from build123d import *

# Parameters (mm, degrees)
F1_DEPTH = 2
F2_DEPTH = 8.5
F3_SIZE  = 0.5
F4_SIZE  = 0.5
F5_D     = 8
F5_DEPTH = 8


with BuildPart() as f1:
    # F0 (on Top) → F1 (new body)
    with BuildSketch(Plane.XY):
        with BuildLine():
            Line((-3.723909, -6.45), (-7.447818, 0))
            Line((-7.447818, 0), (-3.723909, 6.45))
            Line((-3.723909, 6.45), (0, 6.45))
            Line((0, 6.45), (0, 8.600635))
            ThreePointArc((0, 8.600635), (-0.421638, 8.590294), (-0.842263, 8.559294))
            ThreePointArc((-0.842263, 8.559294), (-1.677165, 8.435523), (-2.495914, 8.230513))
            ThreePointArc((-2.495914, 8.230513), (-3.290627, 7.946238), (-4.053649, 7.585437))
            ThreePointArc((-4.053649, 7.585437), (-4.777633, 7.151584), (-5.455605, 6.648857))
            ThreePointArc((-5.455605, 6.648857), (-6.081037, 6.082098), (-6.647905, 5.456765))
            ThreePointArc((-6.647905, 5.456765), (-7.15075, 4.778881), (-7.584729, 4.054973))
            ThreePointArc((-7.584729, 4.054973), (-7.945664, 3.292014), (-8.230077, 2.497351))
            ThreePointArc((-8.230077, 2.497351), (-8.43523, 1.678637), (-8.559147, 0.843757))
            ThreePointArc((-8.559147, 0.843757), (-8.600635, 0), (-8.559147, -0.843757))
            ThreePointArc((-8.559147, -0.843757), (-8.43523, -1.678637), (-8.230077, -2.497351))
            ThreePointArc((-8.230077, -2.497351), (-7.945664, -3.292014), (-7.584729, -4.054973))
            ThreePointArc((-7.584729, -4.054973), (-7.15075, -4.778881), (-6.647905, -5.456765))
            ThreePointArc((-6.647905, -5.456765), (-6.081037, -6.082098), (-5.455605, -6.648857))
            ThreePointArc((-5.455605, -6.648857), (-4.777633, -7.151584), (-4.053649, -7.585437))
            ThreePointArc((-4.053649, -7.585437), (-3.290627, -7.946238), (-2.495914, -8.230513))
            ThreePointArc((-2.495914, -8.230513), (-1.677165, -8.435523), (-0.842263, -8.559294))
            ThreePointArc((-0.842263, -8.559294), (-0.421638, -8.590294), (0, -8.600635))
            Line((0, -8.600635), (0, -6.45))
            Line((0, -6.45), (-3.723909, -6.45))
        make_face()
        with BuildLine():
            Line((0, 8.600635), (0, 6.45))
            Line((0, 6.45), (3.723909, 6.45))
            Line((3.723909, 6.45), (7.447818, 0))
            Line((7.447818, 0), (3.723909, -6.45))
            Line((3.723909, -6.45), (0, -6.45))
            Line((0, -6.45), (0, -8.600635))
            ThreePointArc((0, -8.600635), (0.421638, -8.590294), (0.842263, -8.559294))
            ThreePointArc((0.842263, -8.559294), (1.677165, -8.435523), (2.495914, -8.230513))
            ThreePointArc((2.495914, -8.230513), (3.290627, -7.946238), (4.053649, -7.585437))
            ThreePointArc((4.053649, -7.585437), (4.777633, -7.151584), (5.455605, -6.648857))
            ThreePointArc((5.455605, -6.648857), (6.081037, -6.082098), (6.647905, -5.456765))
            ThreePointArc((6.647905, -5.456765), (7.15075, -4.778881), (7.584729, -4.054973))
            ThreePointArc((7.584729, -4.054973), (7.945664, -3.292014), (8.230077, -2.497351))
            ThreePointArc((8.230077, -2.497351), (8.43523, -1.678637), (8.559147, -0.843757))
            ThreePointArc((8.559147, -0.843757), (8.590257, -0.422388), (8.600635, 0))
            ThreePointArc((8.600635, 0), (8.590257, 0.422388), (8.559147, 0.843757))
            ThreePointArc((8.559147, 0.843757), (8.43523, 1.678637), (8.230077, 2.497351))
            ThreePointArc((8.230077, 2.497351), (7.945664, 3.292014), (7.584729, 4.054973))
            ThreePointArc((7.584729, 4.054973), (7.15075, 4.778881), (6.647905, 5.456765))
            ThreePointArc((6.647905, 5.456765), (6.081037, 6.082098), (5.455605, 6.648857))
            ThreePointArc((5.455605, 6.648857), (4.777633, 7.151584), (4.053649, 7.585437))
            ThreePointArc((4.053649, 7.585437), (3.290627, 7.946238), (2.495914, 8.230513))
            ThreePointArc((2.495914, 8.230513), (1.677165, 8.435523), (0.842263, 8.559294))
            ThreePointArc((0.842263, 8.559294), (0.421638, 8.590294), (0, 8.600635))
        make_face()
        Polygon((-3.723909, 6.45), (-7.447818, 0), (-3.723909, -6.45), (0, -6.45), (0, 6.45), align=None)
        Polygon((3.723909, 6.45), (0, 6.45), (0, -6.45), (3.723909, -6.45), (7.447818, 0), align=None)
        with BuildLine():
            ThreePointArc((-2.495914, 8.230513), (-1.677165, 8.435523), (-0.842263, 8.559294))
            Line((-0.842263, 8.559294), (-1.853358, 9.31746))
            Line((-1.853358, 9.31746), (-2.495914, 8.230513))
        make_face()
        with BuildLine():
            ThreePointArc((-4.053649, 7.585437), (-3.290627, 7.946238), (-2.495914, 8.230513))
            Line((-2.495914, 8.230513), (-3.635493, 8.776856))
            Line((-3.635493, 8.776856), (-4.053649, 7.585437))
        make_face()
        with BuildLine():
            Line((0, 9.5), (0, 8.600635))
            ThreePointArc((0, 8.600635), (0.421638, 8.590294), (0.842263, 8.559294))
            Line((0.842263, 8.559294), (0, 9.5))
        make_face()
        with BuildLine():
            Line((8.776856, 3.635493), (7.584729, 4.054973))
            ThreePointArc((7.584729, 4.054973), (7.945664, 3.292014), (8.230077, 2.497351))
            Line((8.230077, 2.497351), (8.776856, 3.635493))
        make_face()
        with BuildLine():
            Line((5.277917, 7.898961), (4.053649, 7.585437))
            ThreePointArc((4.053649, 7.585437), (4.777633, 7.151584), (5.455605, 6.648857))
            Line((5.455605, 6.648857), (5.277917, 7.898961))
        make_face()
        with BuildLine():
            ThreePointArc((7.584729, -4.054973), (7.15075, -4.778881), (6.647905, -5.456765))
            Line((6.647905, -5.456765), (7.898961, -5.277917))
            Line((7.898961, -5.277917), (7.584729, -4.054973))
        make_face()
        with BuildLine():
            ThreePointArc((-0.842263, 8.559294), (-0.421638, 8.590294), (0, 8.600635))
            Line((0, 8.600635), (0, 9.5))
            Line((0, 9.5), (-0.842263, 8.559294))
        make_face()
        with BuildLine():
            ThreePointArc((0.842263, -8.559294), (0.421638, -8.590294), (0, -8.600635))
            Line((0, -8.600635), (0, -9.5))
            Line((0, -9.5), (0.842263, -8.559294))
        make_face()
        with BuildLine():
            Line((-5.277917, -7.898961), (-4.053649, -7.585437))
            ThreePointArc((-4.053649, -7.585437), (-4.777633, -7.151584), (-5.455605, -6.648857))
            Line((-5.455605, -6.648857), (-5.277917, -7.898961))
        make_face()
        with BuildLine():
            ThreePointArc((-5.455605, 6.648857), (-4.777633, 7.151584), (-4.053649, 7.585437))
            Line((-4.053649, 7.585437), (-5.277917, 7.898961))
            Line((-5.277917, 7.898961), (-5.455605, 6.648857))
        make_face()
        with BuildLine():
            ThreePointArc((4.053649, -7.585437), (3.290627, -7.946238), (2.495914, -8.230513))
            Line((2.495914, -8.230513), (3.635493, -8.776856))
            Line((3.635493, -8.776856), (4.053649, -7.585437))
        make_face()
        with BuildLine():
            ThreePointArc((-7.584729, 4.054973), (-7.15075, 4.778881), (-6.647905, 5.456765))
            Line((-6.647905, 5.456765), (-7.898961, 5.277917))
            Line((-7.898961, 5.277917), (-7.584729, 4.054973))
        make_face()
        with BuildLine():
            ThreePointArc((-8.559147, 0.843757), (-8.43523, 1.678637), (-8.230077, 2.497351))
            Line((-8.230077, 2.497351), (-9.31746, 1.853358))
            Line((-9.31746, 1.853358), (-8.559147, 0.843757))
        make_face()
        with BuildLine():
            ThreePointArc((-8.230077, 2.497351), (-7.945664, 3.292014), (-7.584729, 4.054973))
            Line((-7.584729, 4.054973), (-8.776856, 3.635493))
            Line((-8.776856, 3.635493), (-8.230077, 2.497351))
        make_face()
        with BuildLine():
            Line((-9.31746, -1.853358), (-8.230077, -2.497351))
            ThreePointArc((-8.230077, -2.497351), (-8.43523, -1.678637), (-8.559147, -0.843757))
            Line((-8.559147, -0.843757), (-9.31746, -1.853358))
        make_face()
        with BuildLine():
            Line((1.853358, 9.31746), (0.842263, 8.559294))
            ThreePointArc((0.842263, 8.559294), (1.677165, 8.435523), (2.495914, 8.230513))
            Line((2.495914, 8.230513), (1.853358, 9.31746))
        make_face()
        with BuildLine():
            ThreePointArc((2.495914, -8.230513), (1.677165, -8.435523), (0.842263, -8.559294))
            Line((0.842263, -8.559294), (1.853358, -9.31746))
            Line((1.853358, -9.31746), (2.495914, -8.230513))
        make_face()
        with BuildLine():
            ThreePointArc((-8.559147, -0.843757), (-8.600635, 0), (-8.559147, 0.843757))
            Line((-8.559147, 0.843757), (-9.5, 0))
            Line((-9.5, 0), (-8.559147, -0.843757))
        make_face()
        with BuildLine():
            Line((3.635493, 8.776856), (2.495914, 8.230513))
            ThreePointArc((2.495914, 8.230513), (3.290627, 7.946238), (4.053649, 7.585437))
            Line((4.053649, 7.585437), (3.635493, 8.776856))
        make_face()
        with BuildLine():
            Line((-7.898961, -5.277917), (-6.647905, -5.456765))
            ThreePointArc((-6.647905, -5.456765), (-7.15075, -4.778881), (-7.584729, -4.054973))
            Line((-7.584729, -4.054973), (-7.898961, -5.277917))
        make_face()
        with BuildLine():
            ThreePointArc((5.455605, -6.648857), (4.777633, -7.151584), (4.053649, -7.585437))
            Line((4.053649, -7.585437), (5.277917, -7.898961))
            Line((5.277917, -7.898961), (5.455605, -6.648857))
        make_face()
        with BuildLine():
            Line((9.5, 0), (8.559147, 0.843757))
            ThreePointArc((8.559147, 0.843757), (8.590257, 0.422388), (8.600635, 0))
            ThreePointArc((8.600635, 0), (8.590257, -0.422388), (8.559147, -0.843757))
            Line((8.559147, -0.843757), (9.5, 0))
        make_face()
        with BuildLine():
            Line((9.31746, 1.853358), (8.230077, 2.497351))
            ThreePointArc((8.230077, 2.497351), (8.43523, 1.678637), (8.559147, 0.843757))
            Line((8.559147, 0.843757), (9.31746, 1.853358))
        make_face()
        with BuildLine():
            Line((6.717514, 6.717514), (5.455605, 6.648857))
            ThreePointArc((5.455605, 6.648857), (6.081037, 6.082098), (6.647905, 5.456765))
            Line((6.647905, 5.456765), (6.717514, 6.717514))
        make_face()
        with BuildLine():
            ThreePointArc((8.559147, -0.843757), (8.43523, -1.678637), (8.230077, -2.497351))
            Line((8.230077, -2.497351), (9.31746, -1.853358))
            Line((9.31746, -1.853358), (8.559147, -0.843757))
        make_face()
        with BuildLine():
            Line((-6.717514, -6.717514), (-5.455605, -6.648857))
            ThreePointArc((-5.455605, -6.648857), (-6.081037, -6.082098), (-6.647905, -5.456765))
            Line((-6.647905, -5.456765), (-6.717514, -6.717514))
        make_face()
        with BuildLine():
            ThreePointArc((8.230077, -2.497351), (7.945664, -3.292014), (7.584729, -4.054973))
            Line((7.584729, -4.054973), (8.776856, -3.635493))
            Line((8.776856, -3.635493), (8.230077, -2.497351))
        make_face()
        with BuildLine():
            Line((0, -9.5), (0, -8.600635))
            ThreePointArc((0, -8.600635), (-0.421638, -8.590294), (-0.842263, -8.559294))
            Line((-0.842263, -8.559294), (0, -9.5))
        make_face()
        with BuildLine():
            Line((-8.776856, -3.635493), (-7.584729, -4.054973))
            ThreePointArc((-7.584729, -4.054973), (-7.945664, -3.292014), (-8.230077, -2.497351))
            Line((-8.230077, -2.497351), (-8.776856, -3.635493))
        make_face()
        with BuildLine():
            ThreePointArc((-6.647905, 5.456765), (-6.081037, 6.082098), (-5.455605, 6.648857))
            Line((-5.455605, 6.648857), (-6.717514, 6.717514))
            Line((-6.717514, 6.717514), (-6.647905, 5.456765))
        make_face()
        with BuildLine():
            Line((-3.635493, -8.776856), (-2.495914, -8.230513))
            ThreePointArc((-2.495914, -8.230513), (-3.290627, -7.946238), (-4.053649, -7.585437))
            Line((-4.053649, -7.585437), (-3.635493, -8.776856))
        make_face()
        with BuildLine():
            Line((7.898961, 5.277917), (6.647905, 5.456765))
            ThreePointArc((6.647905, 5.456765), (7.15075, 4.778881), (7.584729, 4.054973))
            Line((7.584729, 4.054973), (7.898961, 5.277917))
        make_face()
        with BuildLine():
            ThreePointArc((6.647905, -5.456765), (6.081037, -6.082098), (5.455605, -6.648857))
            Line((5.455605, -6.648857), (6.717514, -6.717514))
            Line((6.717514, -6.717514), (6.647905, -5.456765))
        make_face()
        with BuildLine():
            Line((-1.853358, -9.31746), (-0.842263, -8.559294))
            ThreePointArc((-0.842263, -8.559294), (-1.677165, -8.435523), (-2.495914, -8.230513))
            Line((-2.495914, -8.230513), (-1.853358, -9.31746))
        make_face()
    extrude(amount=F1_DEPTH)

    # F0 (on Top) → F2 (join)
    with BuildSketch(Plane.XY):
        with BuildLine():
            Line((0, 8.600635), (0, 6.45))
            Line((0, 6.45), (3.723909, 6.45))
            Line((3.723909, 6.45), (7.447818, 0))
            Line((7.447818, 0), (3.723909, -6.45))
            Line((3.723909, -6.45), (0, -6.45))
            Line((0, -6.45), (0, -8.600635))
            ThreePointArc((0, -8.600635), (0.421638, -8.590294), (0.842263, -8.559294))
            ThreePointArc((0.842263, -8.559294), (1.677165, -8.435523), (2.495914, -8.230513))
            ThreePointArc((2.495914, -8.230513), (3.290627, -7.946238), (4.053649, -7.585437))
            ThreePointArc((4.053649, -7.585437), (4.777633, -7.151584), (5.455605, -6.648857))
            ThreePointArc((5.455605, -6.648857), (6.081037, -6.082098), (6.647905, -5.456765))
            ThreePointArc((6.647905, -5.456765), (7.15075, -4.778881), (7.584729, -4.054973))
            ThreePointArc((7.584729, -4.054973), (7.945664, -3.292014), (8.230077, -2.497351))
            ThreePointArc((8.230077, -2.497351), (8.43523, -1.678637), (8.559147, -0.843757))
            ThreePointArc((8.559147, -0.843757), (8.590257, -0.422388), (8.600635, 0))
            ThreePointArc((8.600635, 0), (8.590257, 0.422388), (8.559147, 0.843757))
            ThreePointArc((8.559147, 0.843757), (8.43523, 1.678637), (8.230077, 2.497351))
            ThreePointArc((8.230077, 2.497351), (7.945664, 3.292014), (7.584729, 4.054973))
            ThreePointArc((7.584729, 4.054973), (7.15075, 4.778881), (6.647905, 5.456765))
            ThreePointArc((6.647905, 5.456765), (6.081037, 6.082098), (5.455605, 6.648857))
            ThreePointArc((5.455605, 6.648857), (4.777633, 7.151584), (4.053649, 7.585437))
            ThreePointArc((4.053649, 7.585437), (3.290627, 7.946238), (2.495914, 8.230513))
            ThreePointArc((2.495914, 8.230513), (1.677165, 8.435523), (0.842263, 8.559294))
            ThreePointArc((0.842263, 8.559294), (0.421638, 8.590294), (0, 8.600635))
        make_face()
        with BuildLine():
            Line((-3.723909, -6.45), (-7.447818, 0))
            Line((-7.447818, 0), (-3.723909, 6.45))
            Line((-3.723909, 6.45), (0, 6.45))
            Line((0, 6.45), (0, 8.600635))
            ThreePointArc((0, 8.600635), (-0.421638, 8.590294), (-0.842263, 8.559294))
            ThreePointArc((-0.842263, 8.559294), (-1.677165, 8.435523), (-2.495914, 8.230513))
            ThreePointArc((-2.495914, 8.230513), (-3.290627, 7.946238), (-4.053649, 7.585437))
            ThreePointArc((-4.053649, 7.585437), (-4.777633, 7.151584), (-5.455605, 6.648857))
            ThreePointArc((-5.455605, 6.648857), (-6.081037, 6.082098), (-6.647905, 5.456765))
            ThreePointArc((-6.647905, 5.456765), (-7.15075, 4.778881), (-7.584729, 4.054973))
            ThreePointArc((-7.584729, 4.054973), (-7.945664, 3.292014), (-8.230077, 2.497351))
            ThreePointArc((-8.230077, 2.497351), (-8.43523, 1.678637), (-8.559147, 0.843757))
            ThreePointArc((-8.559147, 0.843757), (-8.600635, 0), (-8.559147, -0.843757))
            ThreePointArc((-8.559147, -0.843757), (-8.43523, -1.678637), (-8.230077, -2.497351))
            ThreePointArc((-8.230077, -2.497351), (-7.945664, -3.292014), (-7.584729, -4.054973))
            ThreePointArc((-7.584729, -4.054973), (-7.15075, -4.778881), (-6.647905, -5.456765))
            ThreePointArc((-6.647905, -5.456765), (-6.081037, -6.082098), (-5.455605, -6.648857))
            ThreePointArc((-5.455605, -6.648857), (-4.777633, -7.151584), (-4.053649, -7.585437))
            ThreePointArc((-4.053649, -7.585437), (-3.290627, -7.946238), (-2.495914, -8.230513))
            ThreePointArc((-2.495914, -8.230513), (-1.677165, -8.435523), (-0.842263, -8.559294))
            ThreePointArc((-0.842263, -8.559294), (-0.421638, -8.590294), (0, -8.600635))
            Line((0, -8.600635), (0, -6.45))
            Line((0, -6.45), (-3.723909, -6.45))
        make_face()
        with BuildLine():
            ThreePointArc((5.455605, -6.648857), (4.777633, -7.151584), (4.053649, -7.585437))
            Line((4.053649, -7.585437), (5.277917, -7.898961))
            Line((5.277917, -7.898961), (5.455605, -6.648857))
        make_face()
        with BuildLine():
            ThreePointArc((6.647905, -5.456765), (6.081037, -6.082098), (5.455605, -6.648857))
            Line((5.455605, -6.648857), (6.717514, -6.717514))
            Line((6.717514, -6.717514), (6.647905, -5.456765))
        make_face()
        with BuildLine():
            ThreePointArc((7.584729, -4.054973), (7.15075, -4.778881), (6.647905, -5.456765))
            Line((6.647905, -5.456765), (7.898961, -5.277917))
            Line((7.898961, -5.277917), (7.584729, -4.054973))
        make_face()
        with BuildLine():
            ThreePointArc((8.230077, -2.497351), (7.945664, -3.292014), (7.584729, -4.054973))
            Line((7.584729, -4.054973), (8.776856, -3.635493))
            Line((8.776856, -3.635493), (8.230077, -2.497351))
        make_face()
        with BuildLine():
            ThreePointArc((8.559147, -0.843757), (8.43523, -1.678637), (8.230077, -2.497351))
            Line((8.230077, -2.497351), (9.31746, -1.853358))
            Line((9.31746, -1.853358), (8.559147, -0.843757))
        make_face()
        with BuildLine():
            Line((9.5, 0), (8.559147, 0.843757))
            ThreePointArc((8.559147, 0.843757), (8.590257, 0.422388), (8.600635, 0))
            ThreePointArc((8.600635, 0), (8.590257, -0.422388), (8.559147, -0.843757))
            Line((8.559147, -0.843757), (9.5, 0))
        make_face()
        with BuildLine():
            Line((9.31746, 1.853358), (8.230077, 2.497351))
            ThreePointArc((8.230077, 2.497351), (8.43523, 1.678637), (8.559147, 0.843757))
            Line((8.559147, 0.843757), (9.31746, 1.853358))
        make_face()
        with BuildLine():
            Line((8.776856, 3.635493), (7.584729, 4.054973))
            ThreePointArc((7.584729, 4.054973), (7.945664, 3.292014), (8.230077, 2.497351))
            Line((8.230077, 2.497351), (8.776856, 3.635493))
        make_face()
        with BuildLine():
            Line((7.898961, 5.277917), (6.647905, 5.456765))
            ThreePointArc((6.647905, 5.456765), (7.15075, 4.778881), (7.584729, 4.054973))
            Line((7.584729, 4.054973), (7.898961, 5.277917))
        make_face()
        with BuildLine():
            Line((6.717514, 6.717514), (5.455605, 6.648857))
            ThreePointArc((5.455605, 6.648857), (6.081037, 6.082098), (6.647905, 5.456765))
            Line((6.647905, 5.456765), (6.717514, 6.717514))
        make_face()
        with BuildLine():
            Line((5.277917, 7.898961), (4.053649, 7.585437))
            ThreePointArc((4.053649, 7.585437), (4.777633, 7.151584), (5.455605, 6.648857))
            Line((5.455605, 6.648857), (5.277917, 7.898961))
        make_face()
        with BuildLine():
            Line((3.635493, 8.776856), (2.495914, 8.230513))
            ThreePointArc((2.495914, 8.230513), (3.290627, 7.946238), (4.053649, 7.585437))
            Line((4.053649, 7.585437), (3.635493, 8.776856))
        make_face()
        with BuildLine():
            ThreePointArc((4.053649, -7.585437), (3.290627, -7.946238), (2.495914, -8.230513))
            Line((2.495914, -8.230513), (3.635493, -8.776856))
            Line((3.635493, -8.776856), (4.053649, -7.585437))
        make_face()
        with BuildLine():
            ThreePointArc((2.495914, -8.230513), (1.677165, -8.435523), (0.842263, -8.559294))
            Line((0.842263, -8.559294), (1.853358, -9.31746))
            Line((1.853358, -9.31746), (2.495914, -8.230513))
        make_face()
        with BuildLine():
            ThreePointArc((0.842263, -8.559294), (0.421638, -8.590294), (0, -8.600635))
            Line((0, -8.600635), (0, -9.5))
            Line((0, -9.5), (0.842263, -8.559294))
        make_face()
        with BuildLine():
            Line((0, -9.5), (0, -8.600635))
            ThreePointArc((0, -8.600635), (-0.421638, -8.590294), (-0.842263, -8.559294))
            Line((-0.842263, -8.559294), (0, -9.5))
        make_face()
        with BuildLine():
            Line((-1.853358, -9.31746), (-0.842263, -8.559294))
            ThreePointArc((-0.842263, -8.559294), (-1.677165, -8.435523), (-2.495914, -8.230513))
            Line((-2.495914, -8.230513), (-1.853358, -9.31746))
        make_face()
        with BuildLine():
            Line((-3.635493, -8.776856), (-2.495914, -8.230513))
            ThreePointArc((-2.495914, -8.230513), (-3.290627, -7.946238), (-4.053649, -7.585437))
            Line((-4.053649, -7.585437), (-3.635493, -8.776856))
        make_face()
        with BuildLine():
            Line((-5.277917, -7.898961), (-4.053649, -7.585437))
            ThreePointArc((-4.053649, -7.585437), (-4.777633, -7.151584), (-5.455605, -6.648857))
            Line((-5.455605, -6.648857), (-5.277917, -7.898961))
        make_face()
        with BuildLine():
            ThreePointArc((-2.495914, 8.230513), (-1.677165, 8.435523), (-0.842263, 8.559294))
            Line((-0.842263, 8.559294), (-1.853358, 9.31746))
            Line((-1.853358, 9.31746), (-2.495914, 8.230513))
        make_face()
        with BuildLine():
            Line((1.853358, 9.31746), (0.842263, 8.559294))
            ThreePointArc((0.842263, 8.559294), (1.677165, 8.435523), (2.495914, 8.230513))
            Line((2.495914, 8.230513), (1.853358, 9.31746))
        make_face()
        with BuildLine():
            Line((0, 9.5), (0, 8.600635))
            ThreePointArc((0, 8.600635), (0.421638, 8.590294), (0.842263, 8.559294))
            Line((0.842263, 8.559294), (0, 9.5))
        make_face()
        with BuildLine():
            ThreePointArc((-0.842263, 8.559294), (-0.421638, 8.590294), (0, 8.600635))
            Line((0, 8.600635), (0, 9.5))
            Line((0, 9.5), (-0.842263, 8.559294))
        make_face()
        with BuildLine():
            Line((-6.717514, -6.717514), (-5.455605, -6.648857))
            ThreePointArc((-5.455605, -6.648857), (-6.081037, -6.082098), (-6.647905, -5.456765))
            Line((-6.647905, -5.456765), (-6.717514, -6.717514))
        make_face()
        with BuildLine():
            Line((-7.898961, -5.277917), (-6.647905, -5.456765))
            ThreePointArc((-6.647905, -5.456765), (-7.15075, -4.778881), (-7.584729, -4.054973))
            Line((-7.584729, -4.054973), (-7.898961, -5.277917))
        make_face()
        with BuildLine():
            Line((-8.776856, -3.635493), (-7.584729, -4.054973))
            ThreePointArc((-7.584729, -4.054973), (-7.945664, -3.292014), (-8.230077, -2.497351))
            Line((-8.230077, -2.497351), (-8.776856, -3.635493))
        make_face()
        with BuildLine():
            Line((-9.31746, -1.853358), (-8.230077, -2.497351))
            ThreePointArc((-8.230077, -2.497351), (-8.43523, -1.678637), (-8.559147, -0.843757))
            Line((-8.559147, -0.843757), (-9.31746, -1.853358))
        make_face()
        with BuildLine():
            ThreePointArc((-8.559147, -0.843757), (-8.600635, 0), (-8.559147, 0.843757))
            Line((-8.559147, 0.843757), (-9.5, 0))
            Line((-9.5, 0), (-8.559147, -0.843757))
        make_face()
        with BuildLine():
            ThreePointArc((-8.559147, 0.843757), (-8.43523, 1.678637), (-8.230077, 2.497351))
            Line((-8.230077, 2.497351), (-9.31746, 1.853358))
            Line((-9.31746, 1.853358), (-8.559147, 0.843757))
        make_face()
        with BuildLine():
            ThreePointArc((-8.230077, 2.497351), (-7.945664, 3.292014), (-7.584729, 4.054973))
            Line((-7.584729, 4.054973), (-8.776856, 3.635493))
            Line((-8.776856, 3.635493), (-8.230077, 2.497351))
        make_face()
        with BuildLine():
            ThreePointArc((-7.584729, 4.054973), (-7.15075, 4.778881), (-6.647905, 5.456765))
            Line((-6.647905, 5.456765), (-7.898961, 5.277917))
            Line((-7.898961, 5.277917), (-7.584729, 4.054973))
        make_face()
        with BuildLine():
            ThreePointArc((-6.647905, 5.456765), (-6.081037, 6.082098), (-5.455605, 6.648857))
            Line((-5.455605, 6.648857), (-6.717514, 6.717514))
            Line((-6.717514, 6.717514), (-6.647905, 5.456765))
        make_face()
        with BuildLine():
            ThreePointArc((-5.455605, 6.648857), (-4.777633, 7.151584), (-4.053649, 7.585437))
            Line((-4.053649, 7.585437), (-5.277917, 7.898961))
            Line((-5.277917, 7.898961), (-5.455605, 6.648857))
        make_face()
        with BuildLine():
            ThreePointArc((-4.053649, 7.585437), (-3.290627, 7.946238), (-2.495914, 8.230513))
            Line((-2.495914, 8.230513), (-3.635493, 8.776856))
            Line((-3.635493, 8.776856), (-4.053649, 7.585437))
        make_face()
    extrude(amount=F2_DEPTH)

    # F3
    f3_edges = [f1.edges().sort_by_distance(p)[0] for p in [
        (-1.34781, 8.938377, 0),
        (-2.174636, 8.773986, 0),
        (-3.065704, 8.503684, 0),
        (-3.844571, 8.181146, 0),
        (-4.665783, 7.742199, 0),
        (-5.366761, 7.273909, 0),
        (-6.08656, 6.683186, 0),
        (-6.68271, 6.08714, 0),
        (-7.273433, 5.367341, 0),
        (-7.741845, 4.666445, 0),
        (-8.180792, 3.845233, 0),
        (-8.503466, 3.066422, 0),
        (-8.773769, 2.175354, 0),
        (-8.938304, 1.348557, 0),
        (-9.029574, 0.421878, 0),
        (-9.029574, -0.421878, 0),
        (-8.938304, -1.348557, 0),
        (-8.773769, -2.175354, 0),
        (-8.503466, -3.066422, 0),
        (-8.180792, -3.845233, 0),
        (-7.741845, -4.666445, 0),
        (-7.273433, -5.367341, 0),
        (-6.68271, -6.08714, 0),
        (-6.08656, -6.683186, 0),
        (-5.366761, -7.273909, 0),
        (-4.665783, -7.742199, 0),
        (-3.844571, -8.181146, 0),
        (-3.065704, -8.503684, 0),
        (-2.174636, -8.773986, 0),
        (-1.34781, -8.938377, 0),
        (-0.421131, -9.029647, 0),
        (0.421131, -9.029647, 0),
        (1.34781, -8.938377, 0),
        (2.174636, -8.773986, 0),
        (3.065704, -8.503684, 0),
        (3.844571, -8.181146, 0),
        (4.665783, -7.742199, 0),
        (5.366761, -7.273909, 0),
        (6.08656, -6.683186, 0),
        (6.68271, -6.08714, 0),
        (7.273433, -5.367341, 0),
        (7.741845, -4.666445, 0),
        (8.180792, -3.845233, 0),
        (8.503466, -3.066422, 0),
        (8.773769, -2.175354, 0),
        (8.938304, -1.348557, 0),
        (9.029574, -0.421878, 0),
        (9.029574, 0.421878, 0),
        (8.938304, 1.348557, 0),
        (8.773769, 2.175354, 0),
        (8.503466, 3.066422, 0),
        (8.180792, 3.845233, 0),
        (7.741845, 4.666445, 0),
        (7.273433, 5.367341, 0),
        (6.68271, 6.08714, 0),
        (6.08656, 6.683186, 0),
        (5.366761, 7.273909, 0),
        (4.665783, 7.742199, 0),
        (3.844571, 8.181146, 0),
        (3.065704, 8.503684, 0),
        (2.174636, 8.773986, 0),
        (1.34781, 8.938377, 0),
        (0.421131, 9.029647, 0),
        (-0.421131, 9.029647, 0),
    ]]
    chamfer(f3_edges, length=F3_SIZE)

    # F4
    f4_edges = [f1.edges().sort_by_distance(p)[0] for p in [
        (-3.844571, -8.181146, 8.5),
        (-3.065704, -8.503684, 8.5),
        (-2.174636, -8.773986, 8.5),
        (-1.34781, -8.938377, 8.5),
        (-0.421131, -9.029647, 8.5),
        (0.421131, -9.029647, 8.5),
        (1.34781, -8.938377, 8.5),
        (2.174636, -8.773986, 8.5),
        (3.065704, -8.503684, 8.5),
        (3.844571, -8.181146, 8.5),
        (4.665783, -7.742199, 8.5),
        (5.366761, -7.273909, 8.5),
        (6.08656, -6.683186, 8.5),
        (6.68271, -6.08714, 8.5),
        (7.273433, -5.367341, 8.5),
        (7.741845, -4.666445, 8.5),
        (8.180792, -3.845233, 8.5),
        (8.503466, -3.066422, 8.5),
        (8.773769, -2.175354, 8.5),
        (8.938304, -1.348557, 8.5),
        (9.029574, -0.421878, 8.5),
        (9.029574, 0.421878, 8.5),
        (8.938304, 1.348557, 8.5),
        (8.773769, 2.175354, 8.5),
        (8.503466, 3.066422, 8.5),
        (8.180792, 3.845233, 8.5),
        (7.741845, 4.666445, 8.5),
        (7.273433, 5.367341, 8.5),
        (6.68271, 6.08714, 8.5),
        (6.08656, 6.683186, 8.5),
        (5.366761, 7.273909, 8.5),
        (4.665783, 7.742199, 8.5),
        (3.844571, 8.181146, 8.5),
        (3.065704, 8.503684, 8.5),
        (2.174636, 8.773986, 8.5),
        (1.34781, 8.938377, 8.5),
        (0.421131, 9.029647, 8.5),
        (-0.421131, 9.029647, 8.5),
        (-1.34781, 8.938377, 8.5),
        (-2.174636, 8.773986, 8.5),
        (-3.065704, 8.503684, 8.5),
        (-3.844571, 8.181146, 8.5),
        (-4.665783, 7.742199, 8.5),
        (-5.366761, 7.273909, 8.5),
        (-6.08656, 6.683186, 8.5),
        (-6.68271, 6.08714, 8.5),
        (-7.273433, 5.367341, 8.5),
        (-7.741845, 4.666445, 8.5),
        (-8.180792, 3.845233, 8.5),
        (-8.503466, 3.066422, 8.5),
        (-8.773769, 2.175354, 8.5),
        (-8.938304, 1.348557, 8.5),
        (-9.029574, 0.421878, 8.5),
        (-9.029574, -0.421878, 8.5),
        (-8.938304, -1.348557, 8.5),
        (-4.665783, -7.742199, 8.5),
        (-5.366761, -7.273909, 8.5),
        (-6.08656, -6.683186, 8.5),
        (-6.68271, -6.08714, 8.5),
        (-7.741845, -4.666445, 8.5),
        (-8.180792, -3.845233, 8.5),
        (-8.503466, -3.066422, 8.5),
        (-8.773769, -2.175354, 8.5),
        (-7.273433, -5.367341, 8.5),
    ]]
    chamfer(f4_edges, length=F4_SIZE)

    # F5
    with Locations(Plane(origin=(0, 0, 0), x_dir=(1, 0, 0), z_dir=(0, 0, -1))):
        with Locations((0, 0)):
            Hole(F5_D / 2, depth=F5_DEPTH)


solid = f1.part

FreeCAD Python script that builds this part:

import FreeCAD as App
import Part
import Sketcher
Q = App.Units.Quantity


def edges_at(feature, points):
    """Names of the edges that pass closest to the given points."""
    edges = feature.Shape.Edges
    near = lambda p: min(range(len(edges)), key=lambda i: edges[i].distToShape(Part.Vertex(*p))[0])
    return sorted({f"Edge{near(p) + 1}" for p in points})


def add_polygon(sketch, points):
    """Adds a closed chain of lines whose ends are joined by coincident constraints."""
    first, n = sketch.GeometryCount, len(points)
    for a, b in zip(points, points[1:] + points[:1]):
        sketch.addGeometry(Part.LineSegment(App.Vector(*a, 0), App.Vector(*b, 0)), False)
    for i in range(n):
        sketch.addConstraint(Sketcher.Constraint("Coincident", first + i, 2, first + (i + 1) % n, 1))

doc = App.newDocument("Part")
body = doc.addObject("PartDesign::Body", "Body")

# Sketch on XY plane
sketch1 = body.newObject("Sketcher::SketchObject", "Sketch")
sketch1.AttachmentSupport = (doc.getObject("XY_Plane"), [""])
sketch1.MapMode = "FlatFace"
add_polygon(sketch1, [(-0.842263, 8.559294), (-1.853358, 9.31746), (-2.495914, 8.230513), (-3.635493, 8.776856), (-4.053649, 7.585437), (-5.277917, 7.898961), (-5.455605, 6.648857), (-6.717514, 6.717514), (-6.647905, 5.456765), (-7.898961, 5.277917), (-7.584729, 4.054973), (-8.776856, 3.635493), (-8.230077, 2.497351), (-9.31746, 1.853358), (-8.559147, 0.843757), (-9.5, 0), (-8.559147, -0.843757), (-9.31746, -1.853358), (-8.230077, -2.497351), (-8.776856, -3.635493), (-7.584729, -4.054973), (-7.898961, -5.277917), (-6.647905, -5.456765), (-6.717514, -6.717514), (-5.455605, -6.648857), (-5.277917, -7.898961), (-4.053649, -7.585437), (-3.635493, -8.776856), (-2.495914, -8.230513), (-1.853358, -9.31746), (-0.842263, -8.559294), (0, -9.5), (0.842263, -8.559294), (1.853358, -9.31746), (2.495914, -8.230513), (3.635493, -8.776856), (4.053649, -7.585437), (5.277917, -7.898961), (5.455605, -6.648857), (6.717514, -6.717514), (6.647905, -5.456765), (7.898961, -5.277917), (7.584729, -4.054973), (8.776856, -3.635493), (8.230077, -2.497351), (9.31746, -1.853358), (8.559147, -0.843757), (9.5, 0), (8.559147, 0.843757), (9.31746, 1.853358), (8.230077, 2.497351), (8.776856, 3.635493), (7.584729, 4.054973), (7.898961, 5.277917), (6.647905, 5.456765), (6.717514, 6.717514), (5.455605, 6.648857), (5.277917, 7.898961), (4.053649, 7.585437), (3.635493, 8.776856), (2.495914, 8.230513), (1.853358, 9.31746), (0.842263, 8.559294), (0, 9.5)])  # lines 0-63
sketch1.addConstraint([
    Sketcher.Constraint("Symmetric", 0, 2, 32, 2, -1, 1),
    Sketcher.Constraint("Symmetric", 1, 2, 33, 2, -1, 1),
    Sketcher.Constraint("Symmetric", 2, 2, 34, 2, -1, 1),
    Sketcher.Constraint("Symmetric", 3, 2, 35, 2, -1, 1),
    Sketcher.Constraint("Symmetric", 4, 2, 36, 2, -1, 1),
    Sketcher.Constraint("Symmetric", 5, 2, 37, 2, -1, 1),
    Sketcher.Constraint("Symmetric", 6, 2, 38, 2, -1, 1),
    Sketcher.Constraint("Symmetric", 7, 2, 39, 2, -1, 1),
    Sketcher.Constraint("Symmetric", 8, 2, 40, 2, -1, 1),
    Sketcher.Constraint("Symmetric", 9, 2, 41, 2, -1, 1),
    Sketcher.Constraint("Symmetric", 10, 2, 42, 2, -1, 1),
    Sketcher.Constraint("Symmetric", 11, 2, 43, 2, -1, 1),
    Sketcher.Constraint("Symmetric", 12, 2, 44, 2, -1, 1),
    Sketcher.Constraint("Symmetric", 13, 2, 45, 2, -1, 1),
    Sketcher.Constraint("Symmetric", 14, 2, 46, 2, -1, 1),
    Sketcher.Constraint("Symmetric", 15, 2, 47, 2, -1, 1),
    Sketcher.Constraint("Symmetric", 16, 2, 48, 2, -1, 1),
    Sketcher.Constraint("Symmetric", 17, 2, 49, 2, -1, 1),
    Sketcher.Constraint("Symmetric", 18, 2, 50, 2, -1, 1),
    Sketcher.Constraint("Symmetric", 19, 2, 51, 2, -1, 1),
    Sketcher.Constraint("Symmetric", 20, 2, 52, 2, -1, 1),
    Sketcher.Constraint("Symmetric", 21, 2, 53, 2, -1, 1),
    Sketcher.Constraint("Symmetric", 22, 2, 54, 2, -1, 1),
    Sketcher.Constraint("Symmetric", 23, 2, 55, 2, -1, 1),
    Sketcher.Constraint("Symmetric", 24, 2, 56, 2, -1, 1),
    Sketcher.Constraint("Symmetric", 25, 2, 57, 2, -1, 1),
    Sketcher.Constraint("Symmetric", 26, 2, 58, 2, -1, 1),
    Sketcher.Constraint("Symmetric", 27, 2, 59, 2, -1, 1),
    Sketcher.Constraint("Symmetric", 28, 2, 60, 2, -1, 1),
    Sketcher.Constraint("Symmetric", 29, 2, 61, 2, -1, 1),
    Sketcher.Constraint("Symmetric", 30, 2, 62, 2, -1, 1),
    Sketcher.Constraint("Symmetric", 31, 2, 63, 2, -1, 1),
    Sketcher.Constraint("Symmetric", 29, 2, 31, 2, -2),
    Sketcher.Constraint("Symmetric", 28, 2, 32, 2, -2),
    Sketcher.Constraint("Symmetric", 27, 2, 33, 2, -2),
    Sketcher.Constraint("Symmetric", 26, 2, 34, 2, -2),
    Sketcher.Constraint("Symmetric", 25, 2, 35, 2, -2),
    Sketcher.Constraint("Symmetric", 24, 2, 36, 2, -2),
    Sketcher.Constraint("Symmetric", 23, 2, 37, 2, -2),
    Sketcher.Constraint("Symmetric", 22, 2, 38, 2, -2),
    Sketcher.Constraint("Symmetric", 21, 2, 39, 2, -2),
    Sketcher.Constraint("Symmetric", 20, 2, 40, 2, -2),
    Sketcher.Constraint("Symmetric", 19, 2, 41, 2, -2),
    Sketcher.Constraint("Symmetric", 18, 2, 42, 2, -2),
    Sketcher.Constraint("Symmetric", 17, 2, 43, 2, -2),
    Sketcher.Constraint("Symmetric", 16, 2, 44, 2, -2),
    Sketcher.Constraint("Symmetric", 15, 2, 45, 2, -2),
    Sketcher.Constraint("PointOnObject", 14, 2, -1),
    Sketcher.Constraint("PointOnObject", 30, 2, -2),
    Sketcher.Constraint("Equal", 0, 2),
    Sketcher.Constraint("Equal", 1, 3),
    Sketcher.Constraint("Equal", 2, 4),
    Sketcher.Constraint("Equal", 3, 5),
    Sketcher.Constraint("Equal", 4, 6),
    Sketcher.Constraint("Equal", 5, 7),
    Sketcher.Constraint("Equal", 6, 8),
    Sketcher.Constraint("Equal", 7, 9),
    Sketcher.Constraint("Equal", 8, 10),
    Sketcher.Constraint("Equal", 9, 11),
    Sketcher.Constraint("Equal", 10, 12),
    Sketcher.Constraint("Equal", 11, 13),
    Sketcher.Constraint("Equal", 12, 14),
    Sketcher.Constraint("Equal", 28, 30),
    Sketcher.Constraint("DistanceX", 14, 2, -1, 1, 9.5),
    Sketcher.Constraint("DistanceY", 30, 2, -1, 1, 9.5),
    Sketcher.Constraint("Distance", 1, 1.262669),
    Sketcher.Constraint("DistanceX", 0, 2, -1, 1, 1.853358),
    Sketcher.Constraint("DistanceY", -1, 1, 0, 2, 9.31746),
    Sketcher.Constraint("DistanceX", 3, 2, -1, 1, 4.053649),
    Sketcher.Constraint("DistanceY", -1, 1, 4, 2, 7.898961),
    Sketcher.Constraint("DistanceX", 8, 2, -1, 1, 7.898961),
    Sketcher.Constraint("DistanceX", 9, 2, -1, 1, 7.584729),
    Sketcher.Constraint("DistanceY", -1, 1, 11, 2, 2.497351),
    Sketcher.Constraint("DistanceX", 12, 2, -1, 1, 9.31746),
    Sketcher.Constraint("DistanceY", -1, 1, 12, 2, 1.853358),
    Sketcher.Constraint("Distance", 0, 1.263776),
    Sketcher.Constraint("DistanceX", 1, 2, -1, 1, 2.495914),
    Sketcher.Constraint("DistanceX", 2, 2, -1, 1, 3.635493),
    Sketcher.Constraint("DistanceX", 5, 2, -1, 1, 5.455605),
    Sketcher.Constraint("DistanceX", 6, 2, -1, 1, 6.717514),
    Sketcher.Constraint("DistanceX", 7, 2, -1, 1, 6.647905),
])
pad1 = body.newObject("PartDesign::Pad", "Pad")
pad1.Profile = sketch1
pad1.Length = 2

# Sketch on XY plane
sketch2 = body.newObject("Sketcher::SketchObject", "Sketch001")
sketch2.AttachmentSupport = (doc.getObject("XY_Plane"), [""])
sketch2.MapMode = "FlatFace"
add_polygon(sketch2, [(0.842263, -8.559294), (1.853358, -9.31746), (2.495914, -8.230513), (3.635493, -8.776856), (4.053649, -7.585437), (5.277917, -7.898961), (5.455605, -6.648857), (6.717514, -6.717514), (6.647905, -5.456765), (7.898961, -5.277917), (7.584729, -4.054973), (8.776856, -3.635493), (8.230077, -2.497351), (9.31746, -1.853358), (8.559147, -0.843757), (9.5, 0), (8.559147, 0.843757), (9.31746, 1.853358), (8.230077, 2.497351), (8.776856, 3.635493), (7.584729, 4.054973), (7.898961, 5.277917), (6.647905, 5.456765), (6.717514, 6.717514), (5.455605, 6.648857), (5.277917, 7.898961), (4.053649, 7.585437), (3.635493, 8.776856), (2.495914, 8.230513), (1.853358, 9.31746), (0.842263, 8.559294), (0, 9.5), (-0.842263, 8.559294), (-1.853358, 9.31746), (-2.495914, 8.230513), (-3.635493, 8.776856), (-4.053649, 7.585437), (-5.277917, 7.898961), (-5.455605, 6.648857), (-6.717514, 6.717514), (-6.647905, 5.456765), (-7.898961, 5.277917), (-7.584729, 4.054973), (-8.776856, 3.635493), (-8.230077, 2.497351), (-9.31746, 1.853358), (-8.559147, 0.843757), (-9.5, 0), (-8.559147, -0.843757), (-9.31746, -1.853358), (-8.230077, -2.497351), (-8.776856, -3.635493), (-7.584729, -4.054973), (-7.898961, -5.277917), (-6.647905, -5.456765), (-6.717514, -6.717514), (-5.455605, -6.648857), (-5.277917, -7.898961), (-4.053649, -7.585437), (-3.635493, -8.776856), (-2.495914, -8.230513), (-1.853358, -9.31746), (-0.842263, -8.559294), (0, -9.5)])  # lines 0-63
add_polygon(sketch2, [(3.723909, 6.45), (7.447818, 0), (3.723909, -6.45), (-3.723909, -6.45), (-7.447818, 0), (-3.723909, 6.45)])  # lines 64-69
sketch2.addConstraint([
    Sketcher.Constraint("Horizontal", 66),
    Sketcher.Constraint("Horizontal", 69),
    Sketcher.Constraint("Symmetric", 0, 2, 32, 2, -1, 1),
    Sketcher.Constraint("Symmetric", 1, 2, 33, 2, -1, 1),
    Sketcher.Constraint("Symmetric", 2, 2, 34, 2, -1, 1),
    Sketcher.Constraint("Symmetric", 3, 2, 35, 2, -1, 1),
    Sketcher.Constraint("Symmetric", 4, 2, 36, 2, -1, 1),
    Sketcher.Constraint("Symmetric", 5, 2, 37, 2, -1, 1),
    Sketcher.Constraint("Symmetric", 6, 2, 38, 2, -1, 1),
    Sketcher.Constraint("Symmetric", 7, 2, 39, 2, -1, 1),
    Sketcher.Constraint("Symmetric", 8, 2, 40, 2, -1, 1),
    Sketcher.Constraint("Symmetric", 9, 2, 41, 2, -1, 1),
    Sketcher.Constraint("Symmetric", 10, 2, 42, 2, -1, 1),
    Sketcher.Constraint("Symmetric", 11, 2, 43, 2, -1, 1),
    Sketcher.Constraint("Symmetric", 12, 2, 44, 2, -1, 1),
    Sketcher.Constraint("Symmetric", 13, 2, 45, 2, -1, 1),
    Sketcher.Constraint("Symmetric", 14, 2, 46, 2, -1, 1),
    Sketcher.Constraint("Symmetric", 15, 2, 47, 2, -1, 1),
    Sketcher.Constraint("Symmetric", 16, 2, 48, 2, -1, 1),
    Sketcher.Constraint("Symmetric", 17, 2, 49, 2, -1, 1),
    Sketcher.Constraint("Symmetric", 18, 2, 50, 2, -1, 1),
    Sketcher.Constraint("Symmetric", 19, 2, 51, 2, -1, 1),
    Sketcher.Constraint("Symmetric", 20, 2, 52, 2, -1, 1),
    Sketcher.Constraint("Symmetric", 21, 2, 53, 2, -1, 1),
    Sketcher.Constraint("Symmetric", 22, 2, 54, 2, -1, 1),
    Sketcher.Constraint("Symmetric", 23, 2, 55, 2, -1, 1),
    Sketcher.Constraint("Symmetric", 24, 2, 56, 2, -1, 1),
    Sketcher.Constraint("Symmetric", 25, 2, 57, 2, -1, 1),
    Sketcher.Constraint("Symmetric", 26, 2, 58, 2, -1, 1),
    Sketcher.Constraint("Symmetric", 27, 2, 59, 2, -1, 1),
    Sketcher.Constraint("Symmetric", 28, 2, 60, 2, -1, 1),
    Sketcher.Constraint("Symmetric", 29, 2, 61, 2, -1, 1),
    Sketcher.Constraint("Symmetric", 30, 2, 62, 2, -1, 1),
    Sketcher.Constraint("Symmetric", 31, 2, 63, 2, -1, 1),
    Sketcher.Constraint("Symmetric", 64, 2, 67, 2, -1, 1),
    Sketcher.Constraint("Symmetric", 65, 2, 68, 2, -1, 1),
    Sketcher.Constraint("Symmetric", 29, 2, 31, 2, -2),
    Sketcher.Constraint("Symmetric", 28, 2, 32, 2, -2),
    Sketcher.Constraint("Symmetric", 27, 2, 33, 2, -2),
    Sketcher.Constraint("Symmetric", 26, 2, 34, 2, -2),
    Sketcher.Constraint("Symmetric", 25, 2, 35, 2, -2),
    Sketcher.Constraint("Symmetric", 24, 2, 36, 2, -2),
    Sketcher.Constraint("Symmetric", 23, 2, 37, 2, -2),
    Sketcher.Constraint("Symmetric", 22, 2, 38, 2, -2),
    Sketcher.Constraint("Symmetric", 21, 2, 39, 2, -2),
    Sketcher.Constraint("Symmetric", 20, 2, 40, 2, -2),
    Sketcher.Constraint("Symmetric", 19, 2, 41, 2, -2),
    Sketcher.Constraint("Symmetric", 18, 2, 42, 2, -2),
    Sketcher.Constraint("Symmetric", 17, 2, 43, 2, -2),
    Sketcher.Constraint("Symmetric", 16, 2, 44, 2, -2),
    Sketcher.Constraint("Symmetric", 15, 2, 45, 2, -2),
    Sketcher.Constraint("PointOnObject", 14, 2, -1),
    Sketcher.Constraint("PointOnObject", 30, 2, -2),
    Sketcher.Constraint("PointOnObject", 64, 2, -1),
    Sketcher.Constraint("Parallel", 64, 67),
    Sketcher.Constraint("Vertical", 66, 2, 68, 2),
    Sketcher.Constraint("Equal", 0, 2),
    Sketcher.Constraint("Equal", 1, 3),
    Sketcher.Constraint("Equal", 2, 4),
    Sketcher.Constraint("Equal", 3, 5),
    Sketcher.Constraint("Equal", 4, 6),
    Sketcher.Constraint("Equal", 5, 7),
    Sketcher.Constraint("Equal", 6, 8),
    Sketcher.Constraint("Equal", 7, 9),
    Sketcher.Constraint("Equal", 8, 10),
    Sketcher.Constraint("Equal", 9, 11),
    Sketcher.Constraint("Equal", 10, 12),
    Sketcher.Constraint("Equal", 11, 13),
    Sketcher.Constraint("Equal", 12, 14),
    Sketcher.Constraint("Equal", 28, 30),
    Sketcher.Constraint("Angle", 64, Q("-60.000002 deg")),
    Sketcher.Constraint("DistanceX", -1, 1, 14, 2, 9.5),
    Sketcher.Constraint("DistanceY", -1, 1, 30, 2, 9.5),
    Sketcher.Constraint("DistanceY", 65, 2, -1, 1, 6.45),
    Sketcher.Constraint("Distance", 1, 1.262669),
    Sketcher.Constraint("DistanceX", 66, 2, 66, 1, 7.447818),
    Sketcher.Constraint("DistanceX", -1, 1, 0, 2, 1.853358),
    Sketcher.Constraint("DistanceY", 0, 2, -1, 1, 9.31746),
    Sketcher.Constraint("DistanceX", -1, 1, 3, 2, 4.053649),
    Sketcher.Constraint("DistanceY", 4, 2, -1, 1, 7.898961),
    Sketcher.Constraint("DistanceX", -1, 1, 8, 2, 7.898961),
    Sketcher.Constraint("DistanceX", -1, 1, 9, 2, 7.584729),
    Sketcher.Constraint("DistanceY", 11, 2, -1, 1, 2.497351),
    Sketcher.Constraint("DistanceX", -1, 1, 12, 2, 9.31746),
    Sketcher.Constraint("DistanceY", 12, 2, -1, 1, 1.853358),
    Sketcher.Constraint("Distance", 0, 1.263776),
    Sketcher.Constraint("DistanceX", -1, 1, 1, 2, 2.495914),
    Sketcher.Constraint("DistanceX", -1, 1, 2, 2, 3.635493),
    Sketcher.Constraint("DistanceX", -1, 1, 5, 2, 5.455605),
    Sketcher.Constraint("DistanceX", -1, 1, 6, 2, 6.717514),
    Sketcher.Constraint("DistanceX", -1, 1, 7, 2, 6.647905),
])
pad2 = body.newObject("PartDesign::Pad", "Pad001")
pad2.Profile = sketch2
pad2.Length = 8.5
doc.recompute()

chamfer = body.newObject("PartDesign::Chamfer", "Chamfer")
chamfer.Base = (pad2, edges_at(pad2, [
    (-1.348, 8.938, 0),
    (-2.175, 8.774, 0),
    (-3.066, 8.504, 0),
    (-3.845, 8.181, 0),
    (-4.666, 7.742, 0),
    (-5.367, 7.274, 0),
    (-6.087, 6.683, 0),
    (-6.683, 6.087, 0),
    (-7.273, 5.367, 0),
    (-7.742, 4.666, 0),
    (-8.181, 3.845, 0),
    (-8.503, 3.066, 0),
    (-8.774, 2.175, 0),
    (-8.938, 1.349, 0),
    (-9.03, 0.422, 0),
    (-9.03, -0.422, 0),
    (-8.938, -1.349, 0),
    (-8.774, -2.175, 0),
    (-8.503, -3.066, 0),
    (-8.181, -3.845, 0),
    (-7.742, -4.666, 0),
    (-7.273, -5.367, 0),
    (-6.683, -6.087, 0),
    (-6.087, -6.683, 0),
    (-5.367, -7.274, 0),
    (-4.666, -7.742, 0),
    (-3.845, -8.181, 0),
    (-3.066, -8.504, 0),
    (-2.175, -8.774, 0),
    (-1.348, -8.938, 0),
    (-0.421, -9.03, 0),
    (0.421, -9.03, 0),
    (1.348, -8.938, 0),
    (2.175, -8.774, 0),
    (3.066, -8.504, 0),
    (3.845, -8.181, 0),
    (4.666, -7.742, 0),
    (5.367, -7.274, 0),
    (6.087, -6.683, 0),
    (6.683, -6.087, 0),
    (7.273, -5.367, 0),
    (7.742, -4.666, 0),
    (8.181, -3.845, 0),
    (8.503, -3.066, 0),
    (8.774, -2.175, 0),
    (8.938, -1.349, 0),
    (9.03, -0.422, 0),
    (9.03, 0.422, 0),
    (8.938, 1.349, 0),
    (8.774, 2.175, 0),
    (8.503, 3.066, 0),
    (8.181, 3.845, 0),
    (7.742, 4.666, 0),
    (7.273, 5.367, 0),
    (6.683, 6.087, 0),
    (6.087, 6.683, 0),
    (5.367, 7.274, 0),
    (4.666, 7.742, 0),
    (3.845, 8.181, 0),
    (3.066, 8.504, 0),
    (2.175, 8.774, 0),
    (1.348, 8.938, 0),
    (0.421, 9.03, 0),
    (-0.421, 9.03, 0),
]))
chamfer.Size = 0.5
doc.recompute()

chamfer2 = body.newObject("PartDesign::Chamfer", "Chamfer001")
chamfer2.Base = (chamfer, edges_at(chamfer, [
    (-3.845, -8.181, 8.5),
    (-3.066, -8.504, 8.5),
    (-2.175, -8.774, 8.5),
    (-1.348, -8.938, 8.5),
    (-0.421, -9.03, 8.5),
    (0.421, -9.03, 8.5),
    (1.348, -8.938, 8.5),
    (2.175, -8.774, 8.5),
    (3.066, -8.504, 8.5),
    (3.845, -8.181, 8.5),
    (4.666, -7.742, 8.5),
    (5.367, -7.274, 8.5),
    (6.087, -6.683, 8.5),
    (6.683, -6.087, 8.5),
    (7.273, -5.367, 8.5),
    (7.742, -4.666, 8.5),
    (8.181, -3.845, 8.5),
    (8.503, -3.066, 8.5),
    (8.774, -2.175, 8.5),
    (8.938, -1.349, 8.5),
    (9.03, -0.422, 8.5),
    (9.03, 0.422, 8.5),
    (8.938, 1.349, 8.5),
    (8.774, 2.175, 8.5),
    (8.503, 3.066, 8.5),
    (8.181, 3.845, 8.5),
    (7.742, 4.666, 8.5),
    (7.273, 5.367, 8.5),
    (6.683, 6.087, 8.5),
    (6.087, 6.683, 8.5),
    (5.367, 7.274, 8.5),
    (4.666, 7.742, 8.5),
    (3.845, 8.181, 8.5),
    (3.066, 8.504, 8.5),
    (2.175, 8.774, 8.5),
    (1.348, 8.938, 8.5),
    (0.421, 9.03, 8.5),
    (-0.421, 9.03, 8.5),
    (-1.348, 8.938, 8.5),
    (-2.175, 8.774, 8.5),
    (-3.066, 8.504, 8.5),
    (-3.845, 8.181, 8.5),
    (-4.666, 7.742, 8.5),
    (-5.367, 7.274, 8.5),
    (-6.087, 6.683, 8.5),
    (-6.683, 6.087, 8.5),
    (-7.273, 5.367, 8.5),
    (-7.742, 4.666, 8.5),
    (-8.181, 3.845, 8.5),
    (-8.503, 3.066, 8.5),
    (-8.774, 2.175, 8.5),
    (-8.938, 1.349, 8.5),
    (-9.03, 0.422, 8.5),
    (-9.03, -0.422, 8.5),
    (-8.938, -1.349, 8.5),
    (-4.666, -7.742, 8.5),
    (-5.367, -7.274, 8.5),
    (-6.087, -6.683, 8.5),
    (-6.683, -6.087, 8.5),
    (-7.742, -4.666, 8.5),
    (-8.181, -3.845, 8.5),
    (-8.503, -3.066, 8.5),
    (-8.774, -2.175, 8.5),
    (-7.273, -5.367, 8.5),
]))
chamfer2.Size = 0.5

# Sketch on XY plane
sketch3 = body.newObject("Sketcher::SketchObject", "Sketch002")
sketch3.AttachmentSupport = (doc.getObject("XY_Plane"), [""])
sketch3.MapMode = "FlatFace"
sketch3.addGeometry(Part.Circle(App.Vector(0, 0, 0), App.Vector(0, 0, 1), 4), False)
sketch3.addConstraint([
    Sketcher.Constraint("Coincident", 0, 3, -1, 1),
    Sketcher.Constraint("Diameter", 0, 8.0),
])
doc.recompute()
hole = body.newObject("PartDesign::Hole", "Hole")
hole.Profile = sketch3
hole.ThreadType = "None"
hole.Diameter = 8
hole.DepthType = "Dimension"
hole.Depth = 8
hole.DrillPoint = "Flat"
hole.Reversed = True

doc.recompute()
